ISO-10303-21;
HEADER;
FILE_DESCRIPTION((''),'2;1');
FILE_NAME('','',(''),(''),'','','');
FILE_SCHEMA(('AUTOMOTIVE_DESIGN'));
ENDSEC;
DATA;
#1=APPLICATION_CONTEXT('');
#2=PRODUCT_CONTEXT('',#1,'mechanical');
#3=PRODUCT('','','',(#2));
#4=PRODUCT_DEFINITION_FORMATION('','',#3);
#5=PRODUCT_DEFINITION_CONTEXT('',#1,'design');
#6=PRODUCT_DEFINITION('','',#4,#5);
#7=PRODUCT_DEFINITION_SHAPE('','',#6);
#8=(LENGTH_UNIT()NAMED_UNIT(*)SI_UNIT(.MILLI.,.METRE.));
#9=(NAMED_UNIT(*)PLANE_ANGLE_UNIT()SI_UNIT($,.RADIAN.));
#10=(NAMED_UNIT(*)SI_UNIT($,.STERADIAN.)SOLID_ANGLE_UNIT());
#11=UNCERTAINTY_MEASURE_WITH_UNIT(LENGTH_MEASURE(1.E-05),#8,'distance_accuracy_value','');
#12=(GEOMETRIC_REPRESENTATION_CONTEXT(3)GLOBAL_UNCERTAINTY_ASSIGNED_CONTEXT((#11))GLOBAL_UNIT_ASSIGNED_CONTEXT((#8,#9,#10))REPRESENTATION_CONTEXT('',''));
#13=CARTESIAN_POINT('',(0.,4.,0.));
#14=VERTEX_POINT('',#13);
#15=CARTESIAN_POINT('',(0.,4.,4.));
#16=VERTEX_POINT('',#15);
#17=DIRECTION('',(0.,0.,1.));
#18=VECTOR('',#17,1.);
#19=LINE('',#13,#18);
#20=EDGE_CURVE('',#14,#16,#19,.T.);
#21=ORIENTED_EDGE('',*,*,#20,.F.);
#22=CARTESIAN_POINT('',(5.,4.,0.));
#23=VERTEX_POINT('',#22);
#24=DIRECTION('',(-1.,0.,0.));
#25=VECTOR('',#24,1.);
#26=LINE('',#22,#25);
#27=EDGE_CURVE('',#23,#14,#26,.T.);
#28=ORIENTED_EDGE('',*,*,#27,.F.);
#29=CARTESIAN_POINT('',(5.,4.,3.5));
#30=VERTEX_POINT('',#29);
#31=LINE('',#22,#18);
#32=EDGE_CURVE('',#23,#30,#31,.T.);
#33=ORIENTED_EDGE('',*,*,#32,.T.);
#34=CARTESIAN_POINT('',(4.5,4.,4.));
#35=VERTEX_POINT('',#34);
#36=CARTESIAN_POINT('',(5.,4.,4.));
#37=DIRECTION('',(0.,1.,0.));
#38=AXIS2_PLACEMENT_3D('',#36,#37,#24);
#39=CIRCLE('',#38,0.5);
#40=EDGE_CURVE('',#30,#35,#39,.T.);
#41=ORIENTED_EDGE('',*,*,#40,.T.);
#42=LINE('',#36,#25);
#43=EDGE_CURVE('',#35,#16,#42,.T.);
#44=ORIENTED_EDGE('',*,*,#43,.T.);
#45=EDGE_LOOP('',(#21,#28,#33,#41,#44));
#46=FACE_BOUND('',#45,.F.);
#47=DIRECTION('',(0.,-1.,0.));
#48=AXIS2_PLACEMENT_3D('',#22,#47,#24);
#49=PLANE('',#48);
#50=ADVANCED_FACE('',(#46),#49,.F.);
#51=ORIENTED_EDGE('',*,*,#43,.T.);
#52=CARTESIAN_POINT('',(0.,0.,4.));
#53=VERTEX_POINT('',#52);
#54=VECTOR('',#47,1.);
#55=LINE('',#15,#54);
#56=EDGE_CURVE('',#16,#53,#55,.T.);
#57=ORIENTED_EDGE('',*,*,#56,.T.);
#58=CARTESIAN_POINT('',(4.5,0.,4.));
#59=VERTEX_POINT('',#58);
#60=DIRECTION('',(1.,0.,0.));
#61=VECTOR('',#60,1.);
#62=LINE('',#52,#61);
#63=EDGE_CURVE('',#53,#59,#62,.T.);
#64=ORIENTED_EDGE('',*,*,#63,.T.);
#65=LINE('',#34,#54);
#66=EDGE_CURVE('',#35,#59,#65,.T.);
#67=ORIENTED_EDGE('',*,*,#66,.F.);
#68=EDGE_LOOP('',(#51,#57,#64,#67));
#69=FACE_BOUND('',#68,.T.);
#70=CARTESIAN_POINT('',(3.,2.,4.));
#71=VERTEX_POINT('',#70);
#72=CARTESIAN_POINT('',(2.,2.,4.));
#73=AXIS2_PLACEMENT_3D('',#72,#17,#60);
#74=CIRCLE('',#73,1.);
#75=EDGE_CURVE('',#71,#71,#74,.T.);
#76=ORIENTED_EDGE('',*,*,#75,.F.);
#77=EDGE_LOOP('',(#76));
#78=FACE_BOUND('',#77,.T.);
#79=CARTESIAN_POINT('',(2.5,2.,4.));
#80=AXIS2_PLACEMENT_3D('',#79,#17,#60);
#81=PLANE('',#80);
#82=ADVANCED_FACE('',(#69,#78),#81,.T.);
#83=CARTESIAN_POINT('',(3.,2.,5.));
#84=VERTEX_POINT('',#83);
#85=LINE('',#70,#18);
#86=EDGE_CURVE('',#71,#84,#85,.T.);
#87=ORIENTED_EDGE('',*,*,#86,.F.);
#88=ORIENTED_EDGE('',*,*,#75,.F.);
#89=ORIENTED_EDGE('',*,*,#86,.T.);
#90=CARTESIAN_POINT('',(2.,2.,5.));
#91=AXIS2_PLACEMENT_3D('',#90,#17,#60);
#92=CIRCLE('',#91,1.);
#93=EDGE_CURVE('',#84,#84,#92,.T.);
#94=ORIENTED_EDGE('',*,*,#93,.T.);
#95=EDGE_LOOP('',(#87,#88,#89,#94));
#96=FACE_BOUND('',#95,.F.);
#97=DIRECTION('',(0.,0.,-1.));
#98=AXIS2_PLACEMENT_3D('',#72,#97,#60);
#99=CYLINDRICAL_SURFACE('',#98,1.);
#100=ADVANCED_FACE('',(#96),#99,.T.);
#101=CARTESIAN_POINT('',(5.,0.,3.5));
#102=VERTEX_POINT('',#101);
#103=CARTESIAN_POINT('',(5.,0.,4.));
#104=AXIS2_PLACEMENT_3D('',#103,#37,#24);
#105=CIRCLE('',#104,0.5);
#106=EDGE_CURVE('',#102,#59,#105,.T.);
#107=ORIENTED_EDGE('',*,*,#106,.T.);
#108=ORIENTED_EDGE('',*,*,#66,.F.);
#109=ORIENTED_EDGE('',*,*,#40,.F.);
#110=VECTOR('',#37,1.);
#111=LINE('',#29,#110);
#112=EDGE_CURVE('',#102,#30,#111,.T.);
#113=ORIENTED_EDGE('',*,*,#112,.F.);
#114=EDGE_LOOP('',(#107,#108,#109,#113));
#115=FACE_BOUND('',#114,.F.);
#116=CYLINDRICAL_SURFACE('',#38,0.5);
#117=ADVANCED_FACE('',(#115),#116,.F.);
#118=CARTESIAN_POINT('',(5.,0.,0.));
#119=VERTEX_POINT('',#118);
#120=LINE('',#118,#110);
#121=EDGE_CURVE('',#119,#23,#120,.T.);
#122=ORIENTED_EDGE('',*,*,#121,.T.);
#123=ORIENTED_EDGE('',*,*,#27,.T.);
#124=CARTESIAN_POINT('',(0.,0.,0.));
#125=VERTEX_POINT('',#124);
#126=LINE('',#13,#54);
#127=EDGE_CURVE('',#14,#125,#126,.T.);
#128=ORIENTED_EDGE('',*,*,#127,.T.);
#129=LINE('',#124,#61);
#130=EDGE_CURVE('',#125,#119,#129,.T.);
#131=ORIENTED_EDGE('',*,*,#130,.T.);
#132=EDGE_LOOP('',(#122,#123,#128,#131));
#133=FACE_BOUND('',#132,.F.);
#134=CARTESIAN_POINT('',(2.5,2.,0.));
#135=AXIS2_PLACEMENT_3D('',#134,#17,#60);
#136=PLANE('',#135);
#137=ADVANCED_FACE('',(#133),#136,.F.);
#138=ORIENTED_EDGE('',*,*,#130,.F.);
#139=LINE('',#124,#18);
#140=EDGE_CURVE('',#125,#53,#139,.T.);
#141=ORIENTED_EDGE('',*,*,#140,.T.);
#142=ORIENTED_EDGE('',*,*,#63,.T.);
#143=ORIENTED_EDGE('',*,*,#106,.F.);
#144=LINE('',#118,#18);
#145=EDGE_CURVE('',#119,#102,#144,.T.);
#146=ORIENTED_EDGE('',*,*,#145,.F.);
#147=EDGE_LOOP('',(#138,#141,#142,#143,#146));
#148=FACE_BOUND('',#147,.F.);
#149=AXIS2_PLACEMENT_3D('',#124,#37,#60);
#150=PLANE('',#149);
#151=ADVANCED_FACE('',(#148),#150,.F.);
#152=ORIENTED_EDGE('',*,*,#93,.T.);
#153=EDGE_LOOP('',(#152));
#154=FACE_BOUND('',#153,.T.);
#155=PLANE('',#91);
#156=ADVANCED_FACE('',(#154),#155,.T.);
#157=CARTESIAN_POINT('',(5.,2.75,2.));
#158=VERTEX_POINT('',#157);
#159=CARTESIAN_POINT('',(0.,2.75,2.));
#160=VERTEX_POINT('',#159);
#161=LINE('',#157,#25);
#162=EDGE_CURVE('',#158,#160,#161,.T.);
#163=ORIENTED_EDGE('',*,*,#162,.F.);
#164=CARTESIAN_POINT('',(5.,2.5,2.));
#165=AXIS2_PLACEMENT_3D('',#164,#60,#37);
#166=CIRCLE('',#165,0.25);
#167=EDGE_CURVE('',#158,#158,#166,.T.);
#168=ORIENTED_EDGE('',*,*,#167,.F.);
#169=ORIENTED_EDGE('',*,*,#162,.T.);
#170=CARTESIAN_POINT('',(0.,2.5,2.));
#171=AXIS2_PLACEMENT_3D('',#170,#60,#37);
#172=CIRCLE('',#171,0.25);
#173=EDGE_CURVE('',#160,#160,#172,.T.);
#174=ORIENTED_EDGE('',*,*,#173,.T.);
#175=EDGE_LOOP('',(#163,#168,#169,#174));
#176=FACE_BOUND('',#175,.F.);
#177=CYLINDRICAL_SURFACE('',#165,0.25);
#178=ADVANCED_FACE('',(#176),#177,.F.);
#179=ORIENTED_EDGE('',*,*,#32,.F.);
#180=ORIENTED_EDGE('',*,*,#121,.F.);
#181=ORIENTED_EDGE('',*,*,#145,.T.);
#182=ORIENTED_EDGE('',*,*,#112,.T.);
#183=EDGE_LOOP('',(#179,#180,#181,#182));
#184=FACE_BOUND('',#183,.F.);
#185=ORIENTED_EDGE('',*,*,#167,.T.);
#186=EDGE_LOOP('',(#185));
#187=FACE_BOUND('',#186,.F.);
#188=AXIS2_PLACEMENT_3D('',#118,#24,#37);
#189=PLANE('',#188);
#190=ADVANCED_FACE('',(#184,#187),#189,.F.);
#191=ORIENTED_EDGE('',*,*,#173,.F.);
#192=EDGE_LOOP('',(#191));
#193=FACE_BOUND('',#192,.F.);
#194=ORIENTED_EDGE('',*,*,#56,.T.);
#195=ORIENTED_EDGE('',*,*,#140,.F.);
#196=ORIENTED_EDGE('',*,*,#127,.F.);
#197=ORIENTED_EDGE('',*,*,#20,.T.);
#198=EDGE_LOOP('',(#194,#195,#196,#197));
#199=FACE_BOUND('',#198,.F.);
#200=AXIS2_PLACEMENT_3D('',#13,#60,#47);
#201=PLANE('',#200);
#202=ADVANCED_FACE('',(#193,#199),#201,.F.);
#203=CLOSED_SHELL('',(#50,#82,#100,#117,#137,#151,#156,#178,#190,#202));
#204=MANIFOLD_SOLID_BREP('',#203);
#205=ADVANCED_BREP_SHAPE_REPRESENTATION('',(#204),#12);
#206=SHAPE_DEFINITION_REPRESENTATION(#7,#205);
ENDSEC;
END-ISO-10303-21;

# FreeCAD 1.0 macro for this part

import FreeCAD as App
import Part
import Sketcher
Q = App.Units.Quantity


def add_polygon(sketch, points):
    """Adds a closed chain of lines whose ends are joined by coincident constraints."""
    first, n = sketch.GeometryCount, len(points)
    for a, b in zip(points, points[1:] + points[:1]):
        sketch.addGeometry(Part.LineSegment(App.Vector(*a, 0), App.Vector(*b, 0)), False)
    for i in range(n):
        sketch.addConstraint(Sketcher.Constraint("Coincident", first + i, 2, first + (i + 1) % n, 1))

doc = App.newDocument("Part")
body = doc.addObject("PartDesign::Body", "Body")

# Sketch on XY plane
sketch1 = body.newObject("Sketcher::SketchObject", "Sketch")
sketch1.AttachmentSupport = (doc.getObject("XY_Plane"), [""])
sketch1.MapMode = "FlatFace"
add_polygon(sketch1, [(0, 0), (5, 0), (5, 4), (0, 4)])  # lines 0-3
sketch1.addConstraint([
    Sketcher.Constraint("Horizontal", 0),
    Sketcher.Constraint("Vertical", 1),
    Sketcher.Constraint("Horizontal", 2),
    Sketcher.Constraint("Vertical", 3),
    Sketcher.Constraint("Coincident", 3, 2, -1, 1),
    Sketcher.Constraint("DistanceX", 0, 1, 0, 2, Q("5 mm")),
    Sketcher.Constraint("DistanceY", 1, 1, 1, 2, Q("4 mm")),
])
pad1 = body.newObject("PartDesign::Pad", "Pad")
pad1.Profile = sketch1
pad1.Length = 4

# Sketch on XY plane
sketch2 = body.newObject("Sketcher::SketchObject", "Sketch001")
sketch2.AttachmentSupport = (doc.getObject("XY_Plane"), [""])
sketch2.MapMode = "FlatFace"
sketch2.AttachmentOffset = App.Placement(App.Vector(0, 0, 4), App.Rotation())
sketch2.addGeometry(Part.Circle(App.Vector(2, 2, 0), App.Vector(0, 0, 1), 1), False)
sketch2.addConstraint([
    Sketcher.Constraint("Diameter", 0, Q("2 mm")),
    Sketcher.Constraint("DistanceX", -1, 1, 0, 3, Q("2 mm")),
    Sketcher.Constraint("DistanceY", -1, 1, 0, 3, Q("2 mm")),
])
pad2 = body.newObject("PartDesign::Pad", "Pad001")
pad2.Profile = sketch2
pad2.Length = 1

# Sketch on XZ plane
sketch3 = body.newObject("Sketcher::SketchObject", "Sketch002")
sketch3.AttachmentSupport = (doc.getObject("XZ_Plane"), [""])
sketch3.MapMode = "FlatFace"
sketch3.AttachmentOffset = App.Placement(App.Vector(0, 0, -4), App.Rotation())
sketch3.addGeometry(Part.Circle(App.Vector(5, 4, 0), App.Vector(0, 0, 1), 0.5), False)
sketch3.addConstraint([
    Sketcher.Constraint("Diameter", 0, Q("1 mm")),
    Sketcher.Constraint("DistanceX", -1, 1, 0, 3, Q("5 mm")),
    Sketcher.Constraint("DistanceY", -1, 1, 0, 3, Q("4 mm")),
])
pocket1 = body.newObject("PartDesign::Pocket", "Pocket")
pocket1.Profile = sketch3
pocket1.Length = 4
pocket1.Reversed = True

# Sketch on YZ plane
sketch4 = body.newObject("Sketcher::SketchObject", "Sketch003")
sketch4.AttachmentSupport = (doc.getObject("YZ_Plane"), [""])
sketch4.MapMode = "FlatFace"
sketch4.AttachmentOffset = App.Placement(App.Vector(0, 0, 5), App.Rotation())
sketch4.addGeometry(Part.Circle(App.Vector(2.5, 2, 0), App.Vector(0, 0, 1), 0.25), False)
sketch4.addConstraint([
    Sketcher.Constraint("Diameter", 0, Q("0.5 mm")),
    Sketcher.Constraint("DistanceY", -1, 1, 0, 3, Q("2 mm")),
    Sketcher.Constraint("DistanceX", -1, 1, 0, 3, Q("2.5 mm")),
])
pocket2 = body.newObject("PartDesign::Pocket", "Pocket001")
pocket2.Profile = sketch4
pocket2.Length = 25

doc.recompute()
